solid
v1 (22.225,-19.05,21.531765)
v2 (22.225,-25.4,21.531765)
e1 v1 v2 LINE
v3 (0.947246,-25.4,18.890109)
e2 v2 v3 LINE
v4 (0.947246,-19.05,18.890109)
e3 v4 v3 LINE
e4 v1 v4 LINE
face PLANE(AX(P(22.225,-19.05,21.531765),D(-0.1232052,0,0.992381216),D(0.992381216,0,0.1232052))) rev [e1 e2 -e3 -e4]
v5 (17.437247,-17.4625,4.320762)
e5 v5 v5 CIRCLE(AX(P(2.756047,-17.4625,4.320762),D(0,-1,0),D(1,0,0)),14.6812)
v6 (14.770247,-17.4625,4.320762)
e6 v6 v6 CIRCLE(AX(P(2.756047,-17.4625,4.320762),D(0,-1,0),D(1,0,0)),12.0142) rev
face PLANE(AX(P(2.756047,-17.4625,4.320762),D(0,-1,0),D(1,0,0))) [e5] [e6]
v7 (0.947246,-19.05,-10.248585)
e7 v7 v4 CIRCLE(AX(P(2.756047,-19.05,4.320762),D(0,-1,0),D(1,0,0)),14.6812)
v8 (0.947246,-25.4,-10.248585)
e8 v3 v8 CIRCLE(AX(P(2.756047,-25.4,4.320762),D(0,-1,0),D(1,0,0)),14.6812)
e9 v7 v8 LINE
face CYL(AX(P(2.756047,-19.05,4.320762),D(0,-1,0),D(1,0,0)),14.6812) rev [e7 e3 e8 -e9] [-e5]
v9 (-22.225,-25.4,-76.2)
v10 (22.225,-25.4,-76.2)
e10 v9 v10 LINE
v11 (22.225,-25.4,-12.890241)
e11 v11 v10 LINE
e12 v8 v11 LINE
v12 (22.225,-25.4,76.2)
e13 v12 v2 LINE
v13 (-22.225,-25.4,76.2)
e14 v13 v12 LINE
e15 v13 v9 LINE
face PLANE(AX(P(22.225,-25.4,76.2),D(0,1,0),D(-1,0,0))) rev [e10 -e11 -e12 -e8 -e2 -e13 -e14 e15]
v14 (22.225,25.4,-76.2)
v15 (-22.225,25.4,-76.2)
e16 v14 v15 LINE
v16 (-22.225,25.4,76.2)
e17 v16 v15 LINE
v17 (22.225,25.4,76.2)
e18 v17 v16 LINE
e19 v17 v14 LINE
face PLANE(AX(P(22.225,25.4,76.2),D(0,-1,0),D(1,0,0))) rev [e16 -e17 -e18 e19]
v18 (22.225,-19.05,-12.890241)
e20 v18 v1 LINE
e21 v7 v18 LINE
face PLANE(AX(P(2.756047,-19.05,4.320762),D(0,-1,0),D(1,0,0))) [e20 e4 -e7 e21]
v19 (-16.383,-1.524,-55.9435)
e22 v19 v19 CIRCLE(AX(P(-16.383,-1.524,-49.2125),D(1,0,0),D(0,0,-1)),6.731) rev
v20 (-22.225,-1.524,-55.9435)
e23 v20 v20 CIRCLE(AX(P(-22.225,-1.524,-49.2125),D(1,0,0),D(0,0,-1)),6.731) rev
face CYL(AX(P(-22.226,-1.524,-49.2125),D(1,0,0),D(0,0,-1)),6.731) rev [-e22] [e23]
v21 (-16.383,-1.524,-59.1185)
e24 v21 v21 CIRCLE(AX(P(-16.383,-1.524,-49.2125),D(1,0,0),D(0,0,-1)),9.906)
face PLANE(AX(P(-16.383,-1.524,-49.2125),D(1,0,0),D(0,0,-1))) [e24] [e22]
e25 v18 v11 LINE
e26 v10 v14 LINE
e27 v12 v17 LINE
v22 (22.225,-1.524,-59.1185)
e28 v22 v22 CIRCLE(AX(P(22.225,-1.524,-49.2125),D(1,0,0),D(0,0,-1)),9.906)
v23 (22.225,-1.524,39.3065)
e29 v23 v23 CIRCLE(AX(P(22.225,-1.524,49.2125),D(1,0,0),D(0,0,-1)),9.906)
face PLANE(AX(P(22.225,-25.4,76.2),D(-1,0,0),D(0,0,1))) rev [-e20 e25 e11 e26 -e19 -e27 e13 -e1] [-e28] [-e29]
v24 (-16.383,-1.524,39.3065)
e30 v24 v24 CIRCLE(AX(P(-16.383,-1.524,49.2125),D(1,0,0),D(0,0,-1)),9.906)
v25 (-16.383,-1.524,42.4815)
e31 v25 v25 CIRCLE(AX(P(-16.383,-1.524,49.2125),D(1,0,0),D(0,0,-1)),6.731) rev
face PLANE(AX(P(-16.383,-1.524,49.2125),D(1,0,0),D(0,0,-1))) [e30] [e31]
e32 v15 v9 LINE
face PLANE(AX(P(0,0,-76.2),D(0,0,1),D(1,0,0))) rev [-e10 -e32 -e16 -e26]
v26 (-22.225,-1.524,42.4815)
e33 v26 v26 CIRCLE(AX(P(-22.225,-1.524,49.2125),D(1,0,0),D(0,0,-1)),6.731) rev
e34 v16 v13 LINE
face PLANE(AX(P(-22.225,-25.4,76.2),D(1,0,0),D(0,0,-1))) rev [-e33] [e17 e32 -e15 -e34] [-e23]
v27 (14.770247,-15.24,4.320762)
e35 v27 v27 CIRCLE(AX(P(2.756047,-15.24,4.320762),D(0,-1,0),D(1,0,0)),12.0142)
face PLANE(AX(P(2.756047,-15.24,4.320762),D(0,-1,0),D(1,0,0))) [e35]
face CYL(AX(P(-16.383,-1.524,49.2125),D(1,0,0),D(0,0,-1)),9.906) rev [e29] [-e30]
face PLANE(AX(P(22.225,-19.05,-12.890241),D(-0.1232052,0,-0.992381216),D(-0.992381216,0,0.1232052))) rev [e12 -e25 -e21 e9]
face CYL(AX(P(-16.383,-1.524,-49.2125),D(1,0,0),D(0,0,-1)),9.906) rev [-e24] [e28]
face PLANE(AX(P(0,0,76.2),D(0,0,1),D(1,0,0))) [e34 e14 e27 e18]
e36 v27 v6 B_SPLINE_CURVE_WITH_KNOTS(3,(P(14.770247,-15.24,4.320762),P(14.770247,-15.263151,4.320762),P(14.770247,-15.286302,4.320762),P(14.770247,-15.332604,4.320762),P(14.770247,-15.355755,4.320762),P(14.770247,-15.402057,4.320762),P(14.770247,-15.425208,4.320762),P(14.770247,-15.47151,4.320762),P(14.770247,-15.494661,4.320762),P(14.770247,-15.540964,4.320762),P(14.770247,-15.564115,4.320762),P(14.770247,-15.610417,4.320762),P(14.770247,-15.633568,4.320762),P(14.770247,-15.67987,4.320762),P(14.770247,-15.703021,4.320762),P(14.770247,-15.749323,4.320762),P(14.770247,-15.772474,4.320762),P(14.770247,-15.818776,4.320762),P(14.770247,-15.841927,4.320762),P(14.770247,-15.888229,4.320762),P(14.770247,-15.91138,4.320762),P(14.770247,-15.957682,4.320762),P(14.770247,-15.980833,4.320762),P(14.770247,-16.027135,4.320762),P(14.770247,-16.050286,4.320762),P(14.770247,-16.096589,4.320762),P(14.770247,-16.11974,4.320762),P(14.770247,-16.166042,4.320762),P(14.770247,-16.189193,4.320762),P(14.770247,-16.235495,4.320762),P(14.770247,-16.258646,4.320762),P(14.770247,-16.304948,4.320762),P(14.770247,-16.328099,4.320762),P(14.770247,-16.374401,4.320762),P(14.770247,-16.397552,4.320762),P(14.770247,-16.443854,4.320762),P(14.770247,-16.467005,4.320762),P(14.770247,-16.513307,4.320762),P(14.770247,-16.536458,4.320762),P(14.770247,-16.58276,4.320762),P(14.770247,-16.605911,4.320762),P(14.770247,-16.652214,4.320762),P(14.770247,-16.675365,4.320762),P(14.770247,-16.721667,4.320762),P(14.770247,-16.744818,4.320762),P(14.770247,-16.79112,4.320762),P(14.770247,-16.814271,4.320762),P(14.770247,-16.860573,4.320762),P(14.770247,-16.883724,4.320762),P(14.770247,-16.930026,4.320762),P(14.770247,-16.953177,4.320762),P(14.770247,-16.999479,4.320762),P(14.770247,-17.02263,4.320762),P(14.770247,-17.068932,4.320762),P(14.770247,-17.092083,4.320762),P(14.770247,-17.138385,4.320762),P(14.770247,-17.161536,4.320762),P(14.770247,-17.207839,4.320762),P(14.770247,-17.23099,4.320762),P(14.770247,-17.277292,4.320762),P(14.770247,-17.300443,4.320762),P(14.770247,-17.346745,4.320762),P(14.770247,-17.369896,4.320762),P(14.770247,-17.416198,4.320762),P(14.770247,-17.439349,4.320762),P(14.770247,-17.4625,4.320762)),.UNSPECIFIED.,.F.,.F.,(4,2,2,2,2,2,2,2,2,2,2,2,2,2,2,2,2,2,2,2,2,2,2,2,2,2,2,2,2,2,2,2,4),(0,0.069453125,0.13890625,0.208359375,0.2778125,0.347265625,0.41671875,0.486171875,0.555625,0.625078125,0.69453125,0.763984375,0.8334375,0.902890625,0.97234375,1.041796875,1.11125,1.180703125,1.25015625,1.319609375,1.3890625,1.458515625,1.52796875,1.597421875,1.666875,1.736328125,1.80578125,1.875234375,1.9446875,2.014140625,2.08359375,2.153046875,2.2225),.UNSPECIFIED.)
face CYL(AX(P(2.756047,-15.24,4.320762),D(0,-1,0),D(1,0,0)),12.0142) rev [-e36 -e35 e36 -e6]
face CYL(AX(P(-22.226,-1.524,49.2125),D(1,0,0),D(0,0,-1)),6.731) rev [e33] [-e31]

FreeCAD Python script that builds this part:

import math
import FreeCAD as App
import Part
import Sketcher

V = App.Vector
Q = App.Units.Quantity

doc = App.newDocument("Part")
body = doc.addObject("PartDesign::Body", "Body")

sketch1 = body.newObject("Sketcher::SketchObject", "Sketch")
sketch1.AttachmentSupport = (doc.getObject("XY_Plane"), [""])
sketch1.MapMode = "FlatFace"
sketch1.addGeometry(Part.LineSegment(V(-22.225, 25.4, 0), V(-22.225, -25.4, 0)), False)
sketch1.addGeometry(Part.LineSegment(V(-22.225, -25.4, 0), V(22.225, -25.4, 0)), False)
sketch1.addGeometry(Part.LineSegment(V(22.225, -25.4, 0), V(22.225, 25.4, 0)), False)
sketch1.addGeometry(Part.LineSegment(V(22.225, 25.4, 0), V(-22.225, 25.4, 0)), False)
sketch1.addConstraint(Sketcher.Constraint("Coincident", 0, 2, 1, 1))
sketch1.addConstraint(Sketcher.Constraint("Coincident", 1, 2, 2, 1))
sketch1.addConstraint(Sketcher.Constraint("Coincident", 2, 2, 3, 1))
sketch1.addConstraint(Sketcher.Constraint("Coincident", 3, 2, 0, 1))
sketch1.addConstraint(Sketcher.Constraint("Vertical", 0))
sketch1.addConstraint(Sketcher.Constraint("Horizontal", 1))
sketch1.addConstraint(Sketcher.Constraint("Vertical", 2))
sketch1.addConstraint(Sketcher.Constraint("Horizontal", 3))
sketch1.addConstraint(Sketcher.Constraint("Symmetric", 0, 2, 2, 2, -1, 1))
sketch1.addConstraint(Sketcher.Constraint("DistanceY", 0, 2, 0, 1, Q("2 in")))
sketch1.addConstraint(Sketcher.Constraint("DistanceX", 1, 1, 1, 2, Q("1.75 in")))
pad1 = body.newObject("PartDesign::Pad", "Pad")
pad1.Profile = sketch1
pad1.Length = Q("6 in")
pad1.Midplane = True

sketch2 = body.newObject("Sketcher::SketchObject", "Sketch001")
sketch2.AttachmentSupport = (doc.getObject("YZ_Plane"), [""])
sketch2.MapMode = "FlatFace"
sketch2.AttachmentOffset = App.Placement(V(0, 0, 0.875 * 25.4), App.Rotation())
sketch2.addGeometry(Part.Circle(V(-1.524, 49.2125, 0), V(0, 0, 1), 6.731), False)
sketch2.addConstraint(Sketcher.Constraint("Diameter", 0, Q("0.53 in")))
sketch2.addConstraint(Sketcher.Constraint("DistanceX", 0, 3, -1, 1, Q("0.06 in")))
sketch2.addConstraint(Sketcher.Constraint("DistanceY", -1, 1, 0, 3, Q("1.9375 in")))
pocket1 = body.newObject("PartDesign::Pocket", "Pocket")
pocket1.Profile = sketch2
pocket1.Type = "UpToFirst"

sketch3 = body.newObject("Sketcher::SketchObject", "Sketch002")
sketch3.AttachmentSupport = (doc.getObject("YZ_Plane"), [""])
sketch3.MapMode = "FlatFace"
sketch3.AttachmentOffset = App.Placement(V(0, 0, 0.875 * 25.4), App.Rotation())
sketch3.addGeometry(Part.Circle(V(-1.524, -49.2125, 0), V(0, 0, 1), 6.731), False)
sketch3.addConstraint(Sketcher.Constraint("Diameter", 0, Q("0.53 in")))
sketch3.addConstraint(Sketcher.Constraint("DistanceX", 0, 3, -1, 1, Q("0.06 in")))
sketch3.addConstraint(Sketcher.Constraint("DistanceY", 0, 3, -1, 1, Q("1.9375 in")))
pocket2 = body.newObject("PartDesign::Pocket", "Pocket001")
pocket2.Profile = sketch3
pocket2.Type = "UpToFirst"

sketch4 = body.newObject("Sketcher::SketchObject", "Sketch003")
sketch4.AttachmentSupport = (doc.getObject("YZ_Plane"), [""])
sketch4.MapMode = "FlatFace"
sketch4.AttachmentOffset = App.Placement(V(0, 0, 0.875 * 25.4), App.Rotation())
sketch4.addGeometry(Part.Circle(V(-1.524, 49.2125, 0), V(0, 0, 1), 9.906), False)
sketch4.addGeometry(Part.Circle(V(-1.524, -49.2125, 0), V(0, 0, 1), 9.906), False)
sketch4.addConstraint(Sketcher.Constraint("Equal", 0, 1))
sketch4.addConstraint(Sketcher.Constraint("Symmetric", 0, 3, 1, 3, -1))
sketch4.addConstraint(Sketcher.Constraint("Diameter", 0, Q("0.78 in")))
sketch4.addConstraint(Sketcher.Constraint("DistanceX", 0, 3, -1, 1, Q("0.06 in")))
sketch4.addConstraint(Sketcher.Constraint("DistanceY", -1, 1, 0, 3, Q("1.9375 in")))
pocket3 = body.newObject("PartDesign::Pocket", "Pocket002")
pocket3.Profile = sketch4
pocket3.Length = Q("1.52 in")

sketch5 = body.newObject("Sketcher::SketchObject", "Sketch004")
sketch5.AttachmentSupport = (doc.getObject("XZ_Plane"), [""])
sketch5.MapMode = "FlatFace"
sketch5.AttachmentOffset = App.Placement(V(0, 0, 1 * 25.4), App.Rotation())
sketch5.addGeometry(Part.LineSegment(V(22.225, -12.890241, 0), V(22.225, 21.531765, 0)), False)
sketch5.addGeometry(Part.LineSegment(V(22.225, 21.531765, 0), V(0.947246, 18.890109, 0)), False)
sketch5.addGeometry(Part.ArcOfCircle(Part.Circle(V(2.756047, 4.320762, 0), V(0, 0, 1), 14.6812), math.radians(97.07712), math.radians(262.92288)), False)
sketch5.addGeometry(Part.LineSegment(V(0.947246, -10.248585, 0), V(22.225, -12.890241, 0)), False)
sketch5.addConstraint(Sketcher.Constraint("Coincident", 0, 2, 1, 1))
sketch5.addConstraint(Sketcher.Constraint("Tangent", 1, 2, 2, 1))
sketch5.addConstraint(Sketcher.Constraint("Tangent", 2, 2, 3, 1))
sketch5.addConstraint(Sketcher.Constraint("Coincident", 3, 2, 0, 1))
sketch5.addConstraint(Sketcher.Constraint("Vertical", 0))
sketch5.addConstraint(Sketcher.Constraint("Vertical", 1, 2, 2, 2))
sketch5.addConstraint(Sketcher.Constraint("Radius", 2, Q("0.578 in")))
sketch5.addConstraint(Sketcher.Constraint("DistanceX", -1, 1, 0, 2, Q("0.875 in")))
sketch5.addConstraint(Sketcher.Constraint("DistanceX", 1, 2, 2, 3, 1.8088))
sketch5.addConstraint(Sketcher.Constraint("Distance", 1, 21.441109))
sketch5.addConstraint(Sketcher.Constraint("DistanceY", -1, 1, 2, 3, 4.320762))
pocket4 = body.newObject("PartDesign::Pocket", "Pocket003")
pocket4.Profile = sketch5
pocket4.Length = Q("0.25 in")

sketch6 = body.newObject("Sketcher::SketchObject", "Sketch005")
sketch6.AttachmentSupport = (doc.getObject("XZ_Plane"), [""])
sketch6.MapMode = "FlatFace"
sketch6.AttachmentOffset = App.Placement(V(0, 0, 0.75 * 25.4), App.Rotation())
sketch6.addGeometry(Part.Circle(V(2.756047, 4.320762, 0), V(0, 0, 1), 12.0142), False)
sketch6.addConstraint(Sketcher.Constraint("Diameter", 0, Q("0.946 in")))
sketch6.addConstraint(Sketcher.Constraint("DistanceY", -1, 1, 0, 3, 4.320762))
sketch6.addConstraint(Sketcher.Constraint("DistanceX", -1, 1, 0, 3, 2.756047))
pocket5 = body.newObject("PartDesign::Pocket", "Pocket004")
pocket5.Profile = sketch6
pocket5.Length = Q("0.15 in")

sketch7 = body.newObject("Sketcher::SketchObject", "Sketch006")
sketch7.AttachmentSupport = (doc.getObject("XZ_Plane"), [""])
sketch7.MapMode = "FlatFace"
sketch7.AttachmentOffset = App.Placement(V(0, 0, 0.75 * 25.4), App.Rotation())
sketch7.addGeometry(Part.Circle(V(2.756047, 4.320762, 0), V(0, 0, 1), 14.6812), False)
sketch7.addConstraint(Sketcher.Constraint("Diameter", 0, Q("1.156 in")))
sketch7.addConstraint(Sketcher.Constraint("DistanceY", -1, 1, 0, 3, 4.320762))
sketch7.addConstraint(Sketcher.Constraint("DistanceX", -1, 1, 0, 3, 2.756047))
pocket6 = body.newObject("PartDesign::Pocket", "Pocket005")
pocket6.Profile = sketch7
pocket6.Length = Q("0.0625 in")

doc.recompute()
